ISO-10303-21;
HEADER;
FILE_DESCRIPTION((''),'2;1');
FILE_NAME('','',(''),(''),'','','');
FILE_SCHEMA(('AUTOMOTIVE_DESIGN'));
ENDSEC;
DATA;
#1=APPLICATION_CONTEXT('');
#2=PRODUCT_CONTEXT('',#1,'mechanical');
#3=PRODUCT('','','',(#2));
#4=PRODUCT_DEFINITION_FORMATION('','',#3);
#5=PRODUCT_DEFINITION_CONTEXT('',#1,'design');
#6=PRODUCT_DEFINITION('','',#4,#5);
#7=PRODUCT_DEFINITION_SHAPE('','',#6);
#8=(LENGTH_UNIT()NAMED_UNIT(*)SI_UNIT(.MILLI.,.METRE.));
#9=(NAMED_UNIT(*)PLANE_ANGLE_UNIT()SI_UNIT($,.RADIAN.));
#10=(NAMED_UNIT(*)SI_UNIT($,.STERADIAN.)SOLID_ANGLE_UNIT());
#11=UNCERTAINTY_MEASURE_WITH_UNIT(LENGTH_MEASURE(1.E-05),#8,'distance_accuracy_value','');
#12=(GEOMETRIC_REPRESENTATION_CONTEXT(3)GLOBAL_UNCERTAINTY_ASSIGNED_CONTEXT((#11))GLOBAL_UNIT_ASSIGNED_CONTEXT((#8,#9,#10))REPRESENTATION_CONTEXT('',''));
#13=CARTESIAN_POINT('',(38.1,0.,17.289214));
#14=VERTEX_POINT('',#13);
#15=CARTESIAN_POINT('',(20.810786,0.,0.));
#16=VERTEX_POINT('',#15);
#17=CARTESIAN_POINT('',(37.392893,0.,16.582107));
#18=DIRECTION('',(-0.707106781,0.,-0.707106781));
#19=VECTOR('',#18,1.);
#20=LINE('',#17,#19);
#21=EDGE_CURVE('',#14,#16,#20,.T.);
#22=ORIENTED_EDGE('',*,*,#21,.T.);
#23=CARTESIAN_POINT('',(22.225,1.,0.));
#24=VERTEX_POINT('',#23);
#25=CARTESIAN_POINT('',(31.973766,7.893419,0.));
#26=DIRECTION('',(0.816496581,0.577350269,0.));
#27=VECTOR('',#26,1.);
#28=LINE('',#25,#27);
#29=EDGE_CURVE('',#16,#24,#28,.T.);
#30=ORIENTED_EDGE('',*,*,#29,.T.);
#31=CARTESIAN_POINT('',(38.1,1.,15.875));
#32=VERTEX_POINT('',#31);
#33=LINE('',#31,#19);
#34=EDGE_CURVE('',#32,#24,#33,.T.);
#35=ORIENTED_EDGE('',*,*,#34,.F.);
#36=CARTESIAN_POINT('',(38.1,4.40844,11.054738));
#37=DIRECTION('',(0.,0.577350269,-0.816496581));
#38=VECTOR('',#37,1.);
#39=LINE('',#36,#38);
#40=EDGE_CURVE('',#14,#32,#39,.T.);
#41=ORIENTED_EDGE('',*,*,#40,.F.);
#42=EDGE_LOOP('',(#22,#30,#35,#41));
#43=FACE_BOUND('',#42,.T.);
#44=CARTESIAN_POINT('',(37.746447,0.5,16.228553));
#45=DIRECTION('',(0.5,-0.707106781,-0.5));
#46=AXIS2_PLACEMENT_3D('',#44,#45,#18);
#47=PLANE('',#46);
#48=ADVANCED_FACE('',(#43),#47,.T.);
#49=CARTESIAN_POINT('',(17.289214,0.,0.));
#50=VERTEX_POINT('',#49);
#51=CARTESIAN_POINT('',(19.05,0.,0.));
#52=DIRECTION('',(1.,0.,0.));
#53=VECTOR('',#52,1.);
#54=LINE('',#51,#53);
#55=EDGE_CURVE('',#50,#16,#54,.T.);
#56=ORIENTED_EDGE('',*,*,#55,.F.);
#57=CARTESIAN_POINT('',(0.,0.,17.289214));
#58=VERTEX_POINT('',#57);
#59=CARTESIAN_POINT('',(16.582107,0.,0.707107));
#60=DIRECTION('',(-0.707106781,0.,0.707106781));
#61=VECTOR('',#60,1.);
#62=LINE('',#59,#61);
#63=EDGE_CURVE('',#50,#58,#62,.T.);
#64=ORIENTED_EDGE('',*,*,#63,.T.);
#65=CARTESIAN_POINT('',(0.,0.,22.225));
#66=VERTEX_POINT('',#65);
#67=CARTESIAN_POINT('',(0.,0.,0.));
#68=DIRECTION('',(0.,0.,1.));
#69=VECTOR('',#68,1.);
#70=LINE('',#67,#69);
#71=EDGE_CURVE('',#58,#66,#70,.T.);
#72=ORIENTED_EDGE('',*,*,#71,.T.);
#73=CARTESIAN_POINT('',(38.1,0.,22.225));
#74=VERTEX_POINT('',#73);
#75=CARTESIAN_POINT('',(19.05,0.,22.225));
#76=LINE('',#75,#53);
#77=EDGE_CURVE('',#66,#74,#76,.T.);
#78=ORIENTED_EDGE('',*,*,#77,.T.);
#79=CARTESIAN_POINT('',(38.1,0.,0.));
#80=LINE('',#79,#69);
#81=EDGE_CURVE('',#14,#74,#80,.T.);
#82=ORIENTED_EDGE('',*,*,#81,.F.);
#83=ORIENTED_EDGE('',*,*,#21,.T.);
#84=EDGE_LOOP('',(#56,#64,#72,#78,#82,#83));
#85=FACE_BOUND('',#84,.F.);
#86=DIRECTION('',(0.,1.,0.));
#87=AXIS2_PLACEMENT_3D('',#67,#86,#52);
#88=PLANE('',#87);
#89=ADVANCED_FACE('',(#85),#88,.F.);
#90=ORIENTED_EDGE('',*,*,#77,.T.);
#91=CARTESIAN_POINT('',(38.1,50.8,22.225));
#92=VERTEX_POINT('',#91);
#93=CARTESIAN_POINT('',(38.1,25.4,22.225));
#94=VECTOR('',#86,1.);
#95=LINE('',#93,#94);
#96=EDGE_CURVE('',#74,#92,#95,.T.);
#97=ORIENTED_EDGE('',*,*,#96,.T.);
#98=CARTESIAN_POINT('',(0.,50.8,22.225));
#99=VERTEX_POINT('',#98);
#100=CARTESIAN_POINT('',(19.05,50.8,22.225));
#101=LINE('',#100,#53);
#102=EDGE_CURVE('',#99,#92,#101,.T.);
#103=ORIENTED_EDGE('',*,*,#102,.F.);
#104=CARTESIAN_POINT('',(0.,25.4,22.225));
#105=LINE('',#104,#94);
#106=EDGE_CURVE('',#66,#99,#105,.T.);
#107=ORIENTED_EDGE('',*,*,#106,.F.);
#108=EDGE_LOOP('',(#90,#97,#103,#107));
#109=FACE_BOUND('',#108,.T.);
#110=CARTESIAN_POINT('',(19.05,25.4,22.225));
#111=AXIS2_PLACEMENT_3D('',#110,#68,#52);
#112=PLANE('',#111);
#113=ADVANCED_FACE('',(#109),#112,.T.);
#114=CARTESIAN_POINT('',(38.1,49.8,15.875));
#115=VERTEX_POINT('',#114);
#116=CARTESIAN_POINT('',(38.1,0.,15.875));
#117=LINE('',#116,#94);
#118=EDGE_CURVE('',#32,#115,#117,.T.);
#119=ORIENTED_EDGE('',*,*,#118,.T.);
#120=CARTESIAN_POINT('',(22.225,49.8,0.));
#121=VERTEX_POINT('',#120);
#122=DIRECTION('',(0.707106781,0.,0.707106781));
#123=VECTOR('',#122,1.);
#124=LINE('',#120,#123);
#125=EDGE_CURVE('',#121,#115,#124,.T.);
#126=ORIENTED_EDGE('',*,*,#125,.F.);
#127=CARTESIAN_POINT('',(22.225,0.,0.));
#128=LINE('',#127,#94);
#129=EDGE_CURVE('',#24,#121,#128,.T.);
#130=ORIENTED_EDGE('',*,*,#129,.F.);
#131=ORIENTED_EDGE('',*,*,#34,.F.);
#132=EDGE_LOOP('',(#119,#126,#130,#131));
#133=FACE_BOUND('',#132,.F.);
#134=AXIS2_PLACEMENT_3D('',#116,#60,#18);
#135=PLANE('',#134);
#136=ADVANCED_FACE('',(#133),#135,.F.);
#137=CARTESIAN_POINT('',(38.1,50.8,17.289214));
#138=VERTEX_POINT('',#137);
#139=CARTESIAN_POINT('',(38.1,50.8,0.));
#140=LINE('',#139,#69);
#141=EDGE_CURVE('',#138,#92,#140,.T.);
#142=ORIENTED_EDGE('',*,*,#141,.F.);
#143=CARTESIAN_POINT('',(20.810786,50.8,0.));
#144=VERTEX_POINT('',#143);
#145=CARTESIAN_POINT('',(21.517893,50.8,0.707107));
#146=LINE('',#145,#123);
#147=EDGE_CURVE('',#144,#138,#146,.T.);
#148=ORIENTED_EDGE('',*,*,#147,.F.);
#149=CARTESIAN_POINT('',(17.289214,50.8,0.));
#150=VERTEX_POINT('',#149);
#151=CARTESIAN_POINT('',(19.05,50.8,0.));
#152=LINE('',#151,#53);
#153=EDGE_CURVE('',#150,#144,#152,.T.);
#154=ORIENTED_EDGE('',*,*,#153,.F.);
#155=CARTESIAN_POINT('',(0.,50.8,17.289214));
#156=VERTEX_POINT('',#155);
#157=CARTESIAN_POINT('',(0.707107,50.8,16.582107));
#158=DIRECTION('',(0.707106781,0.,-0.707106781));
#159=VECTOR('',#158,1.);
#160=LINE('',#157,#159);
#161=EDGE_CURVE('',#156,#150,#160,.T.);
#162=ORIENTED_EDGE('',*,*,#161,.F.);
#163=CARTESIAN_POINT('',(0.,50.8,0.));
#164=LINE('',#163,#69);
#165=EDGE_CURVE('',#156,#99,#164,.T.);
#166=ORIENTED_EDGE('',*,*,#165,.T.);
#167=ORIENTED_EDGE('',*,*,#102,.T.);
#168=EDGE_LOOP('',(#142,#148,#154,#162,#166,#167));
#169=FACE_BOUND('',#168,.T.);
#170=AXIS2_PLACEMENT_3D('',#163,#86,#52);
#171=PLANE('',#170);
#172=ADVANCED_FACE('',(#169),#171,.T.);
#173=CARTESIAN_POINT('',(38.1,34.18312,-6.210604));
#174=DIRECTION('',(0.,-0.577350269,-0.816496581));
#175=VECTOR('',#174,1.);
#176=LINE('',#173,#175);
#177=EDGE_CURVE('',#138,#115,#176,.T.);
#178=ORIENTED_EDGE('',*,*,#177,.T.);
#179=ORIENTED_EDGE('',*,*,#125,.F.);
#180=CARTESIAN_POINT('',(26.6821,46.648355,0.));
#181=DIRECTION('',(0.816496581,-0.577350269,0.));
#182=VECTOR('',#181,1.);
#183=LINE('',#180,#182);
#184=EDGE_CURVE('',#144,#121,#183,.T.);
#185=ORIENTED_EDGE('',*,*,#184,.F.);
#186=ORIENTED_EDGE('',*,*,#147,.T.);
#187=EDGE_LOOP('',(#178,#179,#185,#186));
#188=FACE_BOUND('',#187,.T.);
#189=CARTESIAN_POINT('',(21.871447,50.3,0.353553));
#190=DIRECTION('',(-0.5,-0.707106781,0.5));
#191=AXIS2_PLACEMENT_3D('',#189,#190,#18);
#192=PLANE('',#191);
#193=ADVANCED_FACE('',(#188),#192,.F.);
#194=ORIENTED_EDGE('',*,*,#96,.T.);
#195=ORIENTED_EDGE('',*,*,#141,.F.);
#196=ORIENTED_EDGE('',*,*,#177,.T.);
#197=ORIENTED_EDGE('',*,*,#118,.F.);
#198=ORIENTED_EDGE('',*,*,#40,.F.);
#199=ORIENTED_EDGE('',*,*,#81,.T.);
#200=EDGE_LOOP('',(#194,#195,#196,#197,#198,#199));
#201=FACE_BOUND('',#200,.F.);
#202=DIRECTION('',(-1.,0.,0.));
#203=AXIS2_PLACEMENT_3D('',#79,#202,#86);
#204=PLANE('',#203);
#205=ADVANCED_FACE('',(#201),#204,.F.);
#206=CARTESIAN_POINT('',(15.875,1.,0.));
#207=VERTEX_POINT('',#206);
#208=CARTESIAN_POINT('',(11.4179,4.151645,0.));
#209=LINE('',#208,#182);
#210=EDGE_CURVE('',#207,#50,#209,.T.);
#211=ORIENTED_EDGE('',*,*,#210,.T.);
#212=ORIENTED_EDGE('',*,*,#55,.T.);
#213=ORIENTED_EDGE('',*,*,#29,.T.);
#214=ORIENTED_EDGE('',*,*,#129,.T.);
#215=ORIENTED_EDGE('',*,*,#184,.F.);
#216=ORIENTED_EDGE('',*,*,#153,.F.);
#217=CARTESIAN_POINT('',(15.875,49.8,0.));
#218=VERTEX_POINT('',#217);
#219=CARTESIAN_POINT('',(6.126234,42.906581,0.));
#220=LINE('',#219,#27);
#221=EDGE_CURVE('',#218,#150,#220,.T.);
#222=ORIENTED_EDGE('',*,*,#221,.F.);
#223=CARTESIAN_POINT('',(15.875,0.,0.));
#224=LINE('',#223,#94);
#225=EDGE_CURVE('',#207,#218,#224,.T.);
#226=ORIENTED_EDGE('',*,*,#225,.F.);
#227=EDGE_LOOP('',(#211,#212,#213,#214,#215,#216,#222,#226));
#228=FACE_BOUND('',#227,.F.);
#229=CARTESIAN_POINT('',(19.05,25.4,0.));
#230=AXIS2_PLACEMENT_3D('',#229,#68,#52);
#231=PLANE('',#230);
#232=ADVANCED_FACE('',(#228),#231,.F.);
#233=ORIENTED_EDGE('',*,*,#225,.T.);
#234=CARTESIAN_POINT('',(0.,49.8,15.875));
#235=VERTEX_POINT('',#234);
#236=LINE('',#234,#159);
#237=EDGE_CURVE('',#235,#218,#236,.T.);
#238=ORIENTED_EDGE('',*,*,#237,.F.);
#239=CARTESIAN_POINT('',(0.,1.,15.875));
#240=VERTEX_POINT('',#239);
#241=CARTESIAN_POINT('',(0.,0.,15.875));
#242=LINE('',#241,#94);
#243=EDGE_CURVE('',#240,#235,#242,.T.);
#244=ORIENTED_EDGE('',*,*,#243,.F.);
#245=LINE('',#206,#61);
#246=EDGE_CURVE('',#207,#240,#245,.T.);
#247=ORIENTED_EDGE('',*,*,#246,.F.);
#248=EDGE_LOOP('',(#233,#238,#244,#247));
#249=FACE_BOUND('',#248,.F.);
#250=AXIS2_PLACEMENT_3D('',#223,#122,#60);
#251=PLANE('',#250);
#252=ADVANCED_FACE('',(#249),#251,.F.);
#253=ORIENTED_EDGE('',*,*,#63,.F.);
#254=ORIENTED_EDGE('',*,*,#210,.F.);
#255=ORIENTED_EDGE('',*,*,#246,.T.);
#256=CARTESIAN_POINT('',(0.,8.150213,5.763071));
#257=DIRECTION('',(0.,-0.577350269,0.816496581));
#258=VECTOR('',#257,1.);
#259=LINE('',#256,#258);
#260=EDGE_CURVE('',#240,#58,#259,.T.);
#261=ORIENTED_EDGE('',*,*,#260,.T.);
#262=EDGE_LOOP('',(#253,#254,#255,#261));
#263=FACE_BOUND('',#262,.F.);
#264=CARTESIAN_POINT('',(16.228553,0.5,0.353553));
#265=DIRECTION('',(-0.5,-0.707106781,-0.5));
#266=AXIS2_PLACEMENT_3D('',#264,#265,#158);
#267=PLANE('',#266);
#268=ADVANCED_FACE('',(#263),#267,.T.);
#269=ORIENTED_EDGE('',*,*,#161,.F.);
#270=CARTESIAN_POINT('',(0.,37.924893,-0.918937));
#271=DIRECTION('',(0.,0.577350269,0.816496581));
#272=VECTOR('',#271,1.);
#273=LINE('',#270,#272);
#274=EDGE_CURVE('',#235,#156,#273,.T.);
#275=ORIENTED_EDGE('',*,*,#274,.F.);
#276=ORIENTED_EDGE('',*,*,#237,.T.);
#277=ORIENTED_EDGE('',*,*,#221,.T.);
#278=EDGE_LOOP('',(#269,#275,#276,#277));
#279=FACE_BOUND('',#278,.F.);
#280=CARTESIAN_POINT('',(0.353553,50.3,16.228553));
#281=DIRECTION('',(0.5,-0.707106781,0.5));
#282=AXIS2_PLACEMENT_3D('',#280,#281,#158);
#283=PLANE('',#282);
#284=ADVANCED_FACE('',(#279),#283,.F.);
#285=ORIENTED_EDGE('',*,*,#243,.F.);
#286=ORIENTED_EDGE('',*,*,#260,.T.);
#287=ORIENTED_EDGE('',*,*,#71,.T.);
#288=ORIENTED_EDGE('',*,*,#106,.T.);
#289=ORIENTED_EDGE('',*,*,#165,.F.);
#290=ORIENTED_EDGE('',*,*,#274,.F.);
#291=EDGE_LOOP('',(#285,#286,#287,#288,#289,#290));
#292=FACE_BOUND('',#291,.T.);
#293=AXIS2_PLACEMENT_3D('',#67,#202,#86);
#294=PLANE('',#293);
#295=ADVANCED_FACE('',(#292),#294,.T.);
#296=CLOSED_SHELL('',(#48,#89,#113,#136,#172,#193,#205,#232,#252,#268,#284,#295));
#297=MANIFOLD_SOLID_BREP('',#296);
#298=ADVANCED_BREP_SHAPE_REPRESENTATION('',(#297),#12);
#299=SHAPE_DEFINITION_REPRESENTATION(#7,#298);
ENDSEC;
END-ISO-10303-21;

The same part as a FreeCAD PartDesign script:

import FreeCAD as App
import Part
import Sketcher
Q = App.Units.Quantity


def edges_at(feature, points):
    """Names of the edges that pass closest to the given points."""
    edges = feature.Shape.Edges
    near = lambda p: min(range(len(edges)), key=lambda i: edges[i].distToShape(Part.Vertex(*p))[0])
    return sorted({f"Edge{near(p) + 1}" for p in points})


def add_polygon(sketch, points):
    """Adds a closed chain of lines whose ends are joined by coincident constraints."""
    first, n = sketch.GeometryCount, len(points)
    for a, b in zip(points, points[1:] + points[:1]):
        sketch.addGeometry(Part.LineSegment(App.Vector(*a, 0), App.Vector(*b, 0)), False)
    for i in range(n):
        sketch.addConstraint(Sketcher.Constraint("Coincident", first + i, 2, first + (i + 1) % n, 1))

doc = App.newDocument("Part")
params = doc.addObject("Spreadsheet::Sheet", "Params")
for row, (alias, value) in enumerate([
    ("sketch1_height", "2 in"),
    ("sketch1_width", "1.5 in"),
    ("pad1_length", "0.875 in"),
    ("sketch2_width", "0.625 in"),
    ("chamfer_size", "1 mm"),
], start=1):
    params.set(f"A{row}", alias)
    params.set(f"B{row}", "=" + value)
    params.setAlias(f"B{row}", alias)

body = doc.addObject("PartDesign::Body", "Body")

# Sketch on XY plane
sketch1 = doc.addObject("Sketcher::SketchObject", "Sketch")
body.addObject(sketch1)
sketch1.AttachmentSupport = (doc.XY_Plane, [""])
sketch1.MapMode = "FlatFace"
add_polygon(sketch1, [(0, 50.8), (0, 0), (38.1, 0), (38.1, 50.8)])  # lines 0-3
sketch1.addConstraint(Sketcher.Constraint("Vertical", 0))
sketch1.addConstraint(Sketcher.Constraint("Horizontal", 1))
sketch1.addConstraint(Sketcher.Constraint("Vertical", 2))
sketch1.addConstraint(Sketcher.Constraint("Horizontal", 3))
sketch1.addConstraint(Sketcher.Constraint("Coincident", 0, 2, -1, 1))
sketch1.addConstraint(Sketcher.Constraint("DistanceY", 0, 2, 0, 1, Q("2 in")))
sketch1.addConstraint(Sketcher.Constraint("DistanceX", 1, 1, 1, 2, Q("1.5 in")))
sketch1.setExpression("Constraints[9]", "Params.sketch1_height")
sketch1.setExpression("Constraints[10]", "Params.sketch1_width")
pad1 = doc.addObject("PartDesign::Pad", "Pad")
body.addObject(pad1)
pad1.Profile = sketch1
pad1.setExpression("Length", "Params.pad1_length")

# Sketch on XZ plane
sketch2 = doc.addObject("Sketcher::SketchObject", "Sketch001")
body.addObject(sketch2)
sketch2.AttachmentSupport = (doc.XZ_Plane, [""])
sketch2.MapMode = "FlatFace"
add_polygon(sketch2, [(38.1, 15.875), (22.225, 0), (38.1, 0)])  # lines 0-2
add_polygon(sketch2, [(0, 0), (15.875, 0), (0, 15.875)])  # lines 3-5
sketch2.addConstraint(Sketcher.Constraint("Horizontal", 1))
sketch2.addConstraint(Sketcher.Constraint("Vertical", 2))
sketch2.addConstraint(Sketcher.Constraint("Horizontal", 3))
sketch2.addConstraint(Sketcher.Constraint("Vertical", 5))
sketch2.addConstraint(Sketcher.Constraint("Coincident", 5, 2, -1, 1))
sketch2.addConstraint(Sketcher.Constraint("PointOnObject", 0, 2, -1))
sketch2.addConstraint(Sketcher.Constraint("Perpendicular", 0, 4))
sketch2.addConstraint(Sketcher.Constraint("Horizontal", 2, 2, 4, 2))
sketch2.addConstraint(Sketcher.Constraint("Equal", 1, 3))
sketch2.addConstraint(Sketcher.Constraint("DistanceX", -1, 1, 1, 2, Q("1.5 in")))
sketch2.addConstraint(Sketcher.Constraint("DistanceX", 1, 1, 1, 2, Q("0.625 in")))
sketch2.setExpression("Constraints[16]", "Params.sketch2_width")
pocket1 = doc.addObject("PartDesign::Pocket", "Pocket")
body.addObject(pocket1)
pocket1.Profile = sketch2
pocket1.Type = "ThroughAll"
doc.recompute()

chamfer = doc.addObject("PartDesign::Chamfer", "Chamfer")
body.addObject(chamfer)
chamfer.Base = (pocket1, edges_at(pocket1, [
    (30.163, 0, 7.938),
    (7.938, 0, 7.938),
    (30.163, 50.8, 7.938),
    (7.938, 50.8, 7.938),
]))
chamfer.setExpression("Size", "Params.chamfer_size")

doc.recompute()
